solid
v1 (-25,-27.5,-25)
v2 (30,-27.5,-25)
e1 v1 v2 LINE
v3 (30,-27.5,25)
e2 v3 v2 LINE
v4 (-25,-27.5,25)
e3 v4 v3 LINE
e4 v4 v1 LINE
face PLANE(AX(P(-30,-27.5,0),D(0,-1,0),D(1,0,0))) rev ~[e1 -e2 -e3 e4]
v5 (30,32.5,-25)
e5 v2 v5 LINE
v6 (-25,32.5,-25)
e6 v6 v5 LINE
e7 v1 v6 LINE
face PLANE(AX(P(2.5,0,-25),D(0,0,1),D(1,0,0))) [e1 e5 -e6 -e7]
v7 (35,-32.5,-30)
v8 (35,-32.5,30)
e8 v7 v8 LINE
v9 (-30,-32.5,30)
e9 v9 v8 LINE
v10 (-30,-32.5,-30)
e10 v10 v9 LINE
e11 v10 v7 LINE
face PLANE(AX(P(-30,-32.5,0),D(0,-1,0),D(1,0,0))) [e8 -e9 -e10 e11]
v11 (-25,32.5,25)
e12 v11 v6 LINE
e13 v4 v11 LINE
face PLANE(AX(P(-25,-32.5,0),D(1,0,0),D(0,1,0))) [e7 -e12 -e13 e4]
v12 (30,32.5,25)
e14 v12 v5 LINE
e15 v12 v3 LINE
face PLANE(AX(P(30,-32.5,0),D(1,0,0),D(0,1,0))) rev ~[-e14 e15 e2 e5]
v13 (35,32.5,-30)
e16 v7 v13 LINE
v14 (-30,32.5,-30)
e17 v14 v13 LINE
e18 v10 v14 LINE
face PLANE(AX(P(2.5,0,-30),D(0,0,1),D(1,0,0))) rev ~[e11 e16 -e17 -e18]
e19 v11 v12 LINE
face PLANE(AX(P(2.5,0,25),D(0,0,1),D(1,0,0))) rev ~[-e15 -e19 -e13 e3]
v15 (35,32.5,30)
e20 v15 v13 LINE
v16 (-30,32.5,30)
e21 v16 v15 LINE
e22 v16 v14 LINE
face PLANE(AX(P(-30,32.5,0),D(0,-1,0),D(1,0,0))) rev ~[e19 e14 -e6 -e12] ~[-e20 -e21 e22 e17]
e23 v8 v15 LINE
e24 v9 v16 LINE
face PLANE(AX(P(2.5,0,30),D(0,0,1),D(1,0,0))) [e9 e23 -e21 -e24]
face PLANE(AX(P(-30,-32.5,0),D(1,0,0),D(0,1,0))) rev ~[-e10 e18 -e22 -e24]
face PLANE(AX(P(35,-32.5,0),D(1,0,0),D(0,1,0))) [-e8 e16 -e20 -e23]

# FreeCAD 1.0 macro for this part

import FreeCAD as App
import Part
import Sketcher
from FreeCAD import Vector


def faces_at(feature, points):
    """Names of the faces that lie closest to the given points."""
    faces = feature.Shape.Faces
    near = lambda p: min(range(len(faces)), key=lambda i: faces[i].distToShape(Part.Vertex(*p))[0])
    return sorted({f"Face{near(p) + 1}" for p in points})

doc = App.newDocument("Part")
body = doc.addObject("PartDesign::Body", "Body")

# Sketch on XY plane
sketch1 = body.newObject("Sketcher::SketchObject", "Sketch")
sketch1.AttachmentSupport = (doc.getObject("XY_Plane"), [""])
sketch1.MapMode = "FlatFace"
sketch1.addGeometry(Part.LineSegment(Vector(-30, 32, 0), Vector(-30, -32, 0)), False)
sketch1.addGeometry(Part.LineSegment(Vector(-30, -32, 0), Vector(35, -32, 0)), False)
sketch1.addGeometry(Part.LineSegment(Vector(35, -32, 0), Vector(35, 32, 0)), False)
sketch1.addGeometry(Part.LineSegment(Vector(35, 32, 0), Vector(-30, 32, 0)), False)
sketch1.addConstraint(Sketcher.Constraint("Coincident", 0, 2, 1, 1))
sketch1.addConstraint(Sketcher.Constraint("Coincident", 1, 2, 2, 1))
sketch1.addConstraint(Sketcher.Constraint("Coincident", 2, 2, 3, 1))
sketch1.addConstraint(Sketcher.Constraint("Coincident", 3, 2, 0, 1))
sketch1.addConstraint(Sketcher.Constraint("Vertical", 0))
sketch1.addConstraint(Sketcher.Constraint("Horizontal", 1))
sketch1.addConstraint(Sketcher.Constraint("Vertical", 2))
sketch1.addConstraint(Sketcher.Constraint("Horizontal", 3))
sketch1.addConstraint(Sketcher.Constraint("Equal", 3, 0))
sketch1.addConstraint(Sketcher.Constraint("DistanceX", 1, 1, 1, 2, 65.0))
sketch1.addConstraint(Sketcher.Constraint("DistanceX", 0, 2, -1, 1, 30.0))
sketch1.addConstraint(Sketcher.Constraint("DistanceY", 0, 2, -1, 1, 32.5))
pad1 = body.newObject("PartDesign::Pad", "Pad")
pad1.Profile = sketch1
pad1.Length = 60
pad1.Midplane = True
doc.recompute()

thickness = body.newObject("PartDesign::Thickness", "Thickness")
thickness.Base = (pad1, faces_at(pad1, [(2.5, 32.5, 0)]))
thickness.Value = 5
thickness.Reversed = True
thickness.Join = "Arc"

doc.recompute()
